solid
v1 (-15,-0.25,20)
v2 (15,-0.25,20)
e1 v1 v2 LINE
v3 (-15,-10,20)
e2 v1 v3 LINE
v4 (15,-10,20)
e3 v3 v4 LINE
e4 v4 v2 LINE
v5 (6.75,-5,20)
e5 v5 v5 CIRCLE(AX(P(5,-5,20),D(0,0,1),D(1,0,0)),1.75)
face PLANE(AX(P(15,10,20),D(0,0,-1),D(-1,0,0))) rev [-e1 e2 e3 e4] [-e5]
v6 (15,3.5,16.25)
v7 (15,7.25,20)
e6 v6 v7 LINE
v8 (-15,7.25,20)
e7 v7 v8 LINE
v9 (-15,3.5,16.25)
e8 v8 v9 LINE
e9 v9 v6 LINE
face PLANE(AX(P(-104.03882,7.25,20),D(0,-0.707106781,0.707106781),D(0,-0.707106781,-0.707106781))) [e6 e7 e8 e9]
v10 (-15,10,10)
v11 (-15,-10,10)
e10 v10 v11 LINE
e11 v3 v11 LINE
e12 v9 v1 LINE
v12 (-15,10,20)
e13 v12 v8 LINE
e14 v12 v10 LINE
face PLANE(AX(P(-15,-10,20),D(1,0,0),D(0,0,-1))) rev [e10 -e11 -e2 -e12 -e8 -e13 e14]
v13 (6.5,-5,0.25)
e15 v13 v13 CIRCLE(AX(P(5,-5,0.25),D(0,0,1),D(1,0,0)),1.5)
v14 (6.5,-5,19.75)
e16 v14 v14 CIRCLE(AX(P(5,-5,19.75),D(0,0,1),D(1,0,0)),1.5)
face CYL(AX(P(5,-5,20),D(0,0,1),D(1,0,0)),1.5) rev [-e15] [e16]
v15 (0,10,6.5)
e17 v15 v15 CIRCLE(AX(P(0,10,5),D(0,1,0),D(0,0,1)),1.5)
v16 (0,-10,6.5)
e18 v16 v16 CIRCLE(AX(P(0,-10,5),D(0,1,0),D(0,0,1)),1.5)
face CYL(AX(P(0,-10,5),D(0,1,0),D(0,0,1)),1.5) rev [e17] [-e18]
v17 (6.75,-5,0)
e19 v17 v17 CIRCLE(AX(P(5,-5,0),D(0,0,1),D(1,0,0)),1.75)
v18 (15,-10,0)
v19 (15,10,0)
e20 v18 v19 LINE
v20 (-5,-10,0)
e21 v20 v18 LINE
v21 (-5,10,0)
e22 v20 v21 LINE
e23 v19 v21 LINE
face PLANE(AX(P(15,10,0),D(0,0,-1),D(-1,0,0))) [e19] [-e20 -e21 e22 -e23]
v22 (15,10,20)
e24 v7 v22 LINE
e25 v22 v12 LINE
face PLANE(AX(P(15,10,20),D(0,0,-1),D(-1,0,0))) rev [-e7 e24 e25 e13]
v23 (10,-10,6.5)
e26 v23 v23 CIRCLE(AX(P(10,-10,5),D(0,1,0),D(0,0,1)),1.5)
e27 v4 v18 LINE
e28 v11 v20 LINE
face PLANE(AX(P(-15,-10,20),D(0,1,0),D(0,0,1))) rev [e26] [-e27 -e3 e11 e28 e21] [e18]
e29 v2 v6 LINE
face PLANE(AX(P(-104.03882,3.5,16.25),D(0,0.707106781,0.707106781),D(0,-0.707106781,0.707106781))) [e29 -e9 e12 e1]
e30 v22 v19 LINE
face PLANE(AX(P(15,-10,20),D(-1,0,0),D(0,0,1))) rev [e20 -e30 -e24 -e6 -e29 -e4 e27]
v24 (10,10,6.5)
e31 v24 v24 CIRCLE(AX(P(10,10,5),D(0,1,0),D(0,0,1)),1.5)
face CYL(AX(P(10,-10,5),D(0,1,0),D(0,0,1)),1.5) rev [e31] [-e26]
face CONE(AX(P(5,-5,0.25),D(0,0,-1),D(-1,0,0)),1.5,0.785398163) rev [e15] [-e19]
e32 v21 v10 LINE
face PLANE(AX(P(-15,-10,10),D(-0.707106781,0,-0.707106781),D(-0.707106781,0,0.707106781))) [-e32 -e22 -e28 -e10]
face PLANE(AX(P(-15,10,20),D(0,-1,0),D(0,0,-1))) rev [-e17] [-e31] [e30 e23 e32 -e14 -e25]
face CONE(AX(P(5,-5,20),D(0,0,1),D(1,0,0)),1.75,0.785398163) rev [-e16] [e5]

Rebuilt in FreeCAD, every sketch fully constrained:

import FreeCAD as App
import Part
import Sketcher
from FreeCAD import Vector


def edges_at(feature, points):
    """Names of the edges that pass closest to the given points."""
    edges = feature.Shape.Edges
    near = lambda p: min(range(len(edges)), key=lambda i: edges[i].distToShape(Part.Vertex(*p))[0])
    return sorted({f"Edge{near(p) + 1}" for p in points})


def add_polygon(sketch, points):
    """Adds a closed chain of lines whose ends are joined by coincident constraints."""
    first, n = sketch.GeometryCount, len(points)
    for a, b in zip(points, points[1:] + points[:1]):
        sketch.addGeometry(Part.LineSegment(App.Vector(*a, 0), App.Vector(*b, 0)), False)
    for i in range(n):
        sketch.addConstraint(Sketcher.Constraint("Coincident", first + i, 2, first + (i + 1) % n, 1))

doc = App.newDocument("Part")
body = doc.addObject("PartDesign::Body", "Body")

sketch1 = doc.addObject("Sketcher::SketchObject", "Sketch")
body.addObject(sketch1)
sketch1.AttachmentSupport = (doc.XY_Plane, [""])
sketch1.MapMode = "FlatFace"
add_polygon(sketch1, [(-15, 10), (-15, -10), (15, -10), (15, 10)])
sketch1.addConstraint(Sketcher.Constraint("Vertical", 0))
sketch1.addConstraint(Sketcher.Constraint("Horizontal", 1))
sketch1.addConstraint(Sketcher.Constraint("Vertical", 2))
sketch1.addConstraint(Sketcher.Constraint("Horizontal", 3))
sketch1.addConstraint(Sketcher.Constraint("Symmetric", 0, 2, 2, 2, -1, 1))
sketch1.addConstraint(Sketcher.Constraint("DistanceX", 1, 1, 1, 2, 30.0))
sketch1.addConstraint(Sketcher.Constraint("DistanceY", 0, 2, 0, 1, 20.0))
pad1 = doc.addObject("PartDesign::Pad", "Pad")
body.addObject(pad1)
pad1.Profile = sketch1
pad1.Length = 20

sketch2 = doc.addObject("Sketcher::SketchObject", "Sketch001")
body.addObject(sketch2)
sketch2.AttachmentSupport = (doc.YZ_Plane, [""])
sketch2.MapMode = "FlatFace"
sketch2.AttachmentOffset = App.Placement(Vector(0, 0, -15), App.Rotation())
add_polygon(sketch2, [(52, 64), (4, 16), (-45, 64), (-45, 190), (52, 190)])
sketch2.addConstraint(Sketcher.Constraint("Vertical", 2))
sketch2.addConstraint(Sketcher.Constraint("Horizontal", 3))
sketch2.addConstraint(Sketcher.Constraint("Vertical", 4))
sketch2.addConstraint(Sketcher.Constraint("Perpendicular", 0, 1))
sketch2.addConstraint(Sketcher.Constraint("Horizontal", 1, 2, 4, 2))
sketch2.addConstraint(Sketcher.Constraint("Equal", 0, 1))
sketch2.addConstraint(Sketcher.Constraint("DistanceX", -1, 1, 0, 2, 3.5))
sketch2.addConstraint(Sketcher.Constraint("DistanceY", -1, 1, 0, 2, 16.25))
sketch2.addConstraint(Sketcher.Constraint("DistanceX", 3, 1, 3, 2, 96.34488))
sketch2.addConstraint(Sketcher.Constraint("DistanceY", 2, 1, 2, 2, 125.645634))
pocket1 = doc.addObject("PartDesign::Pocket", "Pocket")
body.addObject(pocket1)
pocket1.Profile = sketch2
pocket1.Type = "ThroughAll"
pocket1.Midplane = True

sketch3 = doc.addObject("Sketcher::SketchObject", "Sketch002")
body.addObject(sketch3)
sketch3.AttachmentSupport = (doc.XZ_Plane, [""])
sketch3.MapMode = "FlatFace"
sketch3.AttachmentOffset = App.Placement(Vector(0, 0, -10), App.Rotation())
sketch3.addGeometry(Part.Circle(Vector(10, 5, 0), Vector(0, 0, 1), 1.5), False)
sketch3.addGeometry(Part.Circle(Vector(0, 5, 0), Vector(0, 0, 1), 1.5), False)
sketch3.addConstraint(Sketcher.Constraint("Equal", 0, 1))
sketch3.addConstraint(Sketcher.Constraint("PointOnObject", 1, 3, -2))
sketch3.addConstraint(Sketcher.Constraint("Horizontal", 0, 3, 1, 3))
sketch3.addConstraint(Sketcher.Constraint("Diameter", 0, 3.0))
sketch3.addConstraint(Sketcher.Constraint("DistanceX", -1, 1, 0, 3, 10.0))
sketch3.addConstraint(Sketcher.Constraint("DistanceY", -1, 1, 0, 3, 5.0))
pocket2 = doc.addObject("PartDesign::Pocket", "Pocket001")
body.addObject(pocket2)
pocket2.Profile = sketch3
pocket2.Type = "ThroughAll"
pocket2.Reversed = True
doc.recompute()

chamfer = doc.addObject("PartDesign::Chamfer", "Chamfer")
body.addObject(chamfer)
chamfer.Base = (pocket2, edges_at(pocket2, [(-15, 0, 0)]))
chamfer.Size = 10

sketch4 = doc.addObject("Sketcher::SketchObject", "Sketch003")
body.addObject(sketch4)
sketch4.AttachmentSupport = (doc.YZ_Plane, [""])
sketch4.MapMode = "FlatFace"
sketch4.AttachmentOffset = App.Placement(Vector(0, 0, 5), App.Rotation())
add_polygon(sketch4, [(-5, 0), (-5, 20), (-6.75, 20), (-6.5, 19.75), (-6.5, 0.25), (-6.75, 0)])
sketch4.addGeometry(Part.LineSegment(Vector(-5, 20, 0), Vector(-5, 0, 0)), True)
sketch4.addConstraint(Sketcher.Constraint("Vertical", 0))
sketch4.addConstraint(Sketcher.Constraint("Horizontal", 1))
sketch4.addConstraint(Sketcher.Constraint("Vertical", 3))
sketch4.addConstraint(Sketcher.Constraint("Horizontal", 5))
sketch4.addConstraint(Sketcher.Constraint("Vertical", 6))
sketch4.addConstraint(Sketcher.Constraint("Coincident", 6, 1, 0, 2))
sketch4.addConstraint(Sketcher.Constraint("PointOnObject", 4, 2, -1))
sketch4.addConstraint(Sketcher.Constraint("PointOnObject", 6, 2, -1))
sketch4.addConstraint(Sketcher.Constraint("Perpendicular", 2, 4))
sketch4.addConstraint(Sketcher.Constraint("Vertical", 1, 2, 4, 2))
sketch4.addConstraint(Sketcher.Constraint("Equal", 2, 4))
sketch4.addConstraint(Sketcher.Constraint("DistanceY", 0, 1, 0, 2, 20.0))
sketch4.addConstraint(Sketcher.Constraint("DistanceY", 3, 2, 3, 1, 19.5))
sketch4.addConstraint(Sketcher.Constraint("DistanceX", 0, 2, -1, 1, 5.0))
sketch4.addConstraint(Sketcher.Constraint("DistanceX", 1, 2, 1, 1, 1.75))
groove = doc.addObject("PartDesign::Groove", "Groove")
body.addObject(groove)
groove.Profile = sketch4
groove.ReferenceAxis = (sketch4, ["Axis0"])
groove.Angle = 360

doc.recompute()
